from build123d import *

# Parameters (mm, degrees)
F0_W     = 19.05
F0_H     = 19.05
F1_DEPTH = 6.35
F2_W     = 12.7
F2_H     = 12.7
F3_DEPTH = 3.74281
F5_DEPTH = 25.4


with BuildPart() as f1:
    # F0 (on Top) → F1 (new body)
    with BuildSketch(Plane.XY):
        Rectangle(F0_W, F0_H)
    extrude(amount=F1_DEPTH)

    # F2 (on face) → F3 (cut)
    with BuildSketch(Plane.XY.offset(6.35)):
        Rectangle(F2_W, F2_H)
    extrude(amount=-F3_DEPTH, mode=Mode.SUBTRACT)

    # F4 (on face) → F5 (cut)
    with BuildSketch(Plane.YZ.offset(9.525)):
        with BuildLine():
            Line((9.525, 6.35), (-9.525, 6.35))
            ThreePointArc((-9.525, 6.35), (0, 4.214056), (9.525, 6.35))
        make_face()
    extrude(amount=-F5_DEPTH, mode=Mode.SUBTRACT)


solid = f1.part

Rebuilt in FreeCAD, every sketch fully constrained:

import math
import FreeCAD as App
import Part
import Sketcher
from FreeCAD import Vector
Q = App.Units.Quantity

doc = App.newDocument("Part")
params = doc.addObject("Spreadsheet::Sheet", "Params")
for row, (alias, value) in enumerate([
    ("sketch1_width", "0.75 in"),
    ("pad1_length", "0.25 in"),
    ("sketch2_width", "0.5 in"),
    ("pocket1_length", "3.74281 mm"),
    ("sketch3_width", "0.75 in"),
    ("pocket2_length", "1 in"),
], start=1):
    params.set(f"A{row}", alias)
    params.set(f"B{row}", "=" + value)
    params.setAlias(f"B{row}", alias)

body = doc.addObject("PartDesign::Body", "Body")

sketch1 = body.newObject("Sketcher::SketchObject", "Sketch")
sketch1.AttachmentSupport = (doc.getObject("XY_Plane"), [""])
sketch1.MapMode = "FlatFace"
sketch1.addGeometry([
    Part.LineSegment(Vector(-10, 10, 0), Vector(-10, -10, 0)),
    Part.LineSegment(Vector(-10, -10, 0), Vector(10, -10, 0)),
    Part.LineSegment(Vector(10, -10, 0), Vector(10, 10, 0)),
    Part.LineSegment(Vector(10, 10, 0), Vector(-10, 10, 0)),
], False)
sketch1.addConstraint([
    Sketcher.Constraint("Coincident", 0, 2, 1, 1),
    Sketcher.Constraint("Coincident", 1, 2, 2, 1),
    Sketcher.Constraint("Coincident", 2, 2, 3, 1),
    Sketcher.Constraint("Coincident", 3, 2, 0, 1),
    Sketcher.Constraint("Vertical", 0),
    Sketcher.Constraint("Horizontal", 1),
    Sketcher.Constraint("Vertical", 2),
    Sketcher.Constraint("Horizontal", 3),
    Sketcher.Constraint("Symmetric", 0, 2, 2, 2, -1, 1),
    Sketcher.Constraint("Equal", 3, 0),
    Sketcher.Constraint("DistanceX", 1, 1, 1, 2, Q("0.75 in")),
])
sketch1.setExpression("Constraints[10]", "Params.sketch1_width")
pad1 = body.newObject("PartDesign::Pad", "Pad")
pad1.Profile = sketch1
pad1.setExpression("Length", "Params.pad1_length")

sketch2 = body.newObject("Sketcher::SketchObject", "Sketch001")
sketch2.AttachmentSupport = (doc.getObject("XY_Plane"), [""])
sketch2.MapMode = "FlatFace"
sketch2.AttachmentOffset = App.Placement(Vector(0, 0, 0.25 * 25.4), App.Rotation())
sketch2.addGeometry([
    Part.LineSegment(Vector(-6, 6, 0), Vector(-6, -6, 0)),
    Part.LineSegment(Vector(-6, -6, 0), Vector(6, -6, 0)),
    Part.LineSegment(Vector(6, -6, 0), Vector(6, 6, 0)),
    Part.LineSegment(Vector(6, 6, 0), Vector(-6, 6, 0)),
], False)
sketch2.addConstraint([
    Sketcher.Constraint("Coincident", 0, 2, 1, 1),
    Sketcher.Constraint("Coincident", 1, 2, 2, 1),
    Sketcher.Constraint("Coincident", 2, 2, 3, 1),
    Sketcher.Constraint("Coincident", 3, 2, 0, 1),
    Sketcher.Constraint("Vertical", 0),
    Sketcher.Constraint("Horizontal", 1),
    Sketcher.Constraint("Vertical", 2),
    Sketcher.Constraint("Horizontal", 3),
    Sketcher.Constraint("Symmetric", 0, 2, 2, 2, -1, 1),
    Sketcher.Constraint("Equal", 3, 0),
    Sketcher.Constraint("DistanceX", 1, 1, 1, 2, Q("0.5 in")),
])
sketch2.setExpression("Constraints[10]", "Params.sketch2_width")
pocket1 = body.newObject("PartDesign::Pocket", "Pocket")
pocket1.Profile = sketch2
pocket1.setExpression("Length", "Params.pocket1_length")

sketch3 = body.newObject("Sketcher::SketchObject", "Sketch002")
sketch3.AttachmentSupport = (doc.getObject("YZ_Plane"), [""])
sketch3.MapMode = "FlatFace"
sketch3.AttachmentOffset = App.Placement(Vector(0, 0, 0.375 * 25.4), App.Rotation())
sketch3.addGeometry([
    Part.LineSegment(Vector(10, 6, 0), Vector(-10, 6, 0)),
    Part.ArcOfCircle(Part.Circle(Vector(0, 27, 0), Vector(0, 0, 1), 22), math.radians(-115), math.radians(-65)),
], False)
sketch3.addConstraint([
    Sketcher.Constraint("Coincident", 0, 1, 1, 2),
    Sketcher.Constraint("Coincident", 1, 1, 0, 2),
    Sketcher.Constraint("Horizontal", 0),
    Sketcher.Constraint("PointOnObject", 1, 3, -2),
    Sketcher.Constraint("DistanceX", 0, 2, 0, 1, Q("0.75 in")),
    Sketcher.Constraint("DistanceY", -1, 1, 0, 1, Q("0.25 in")),
    Sketcher.Constraint("Radius", 1, 22.305801),
])
sketch3.setExpression("Constraints[4]", "Params.sketch3_width")
pocket2 = body.newObject("PartDesign::Pocket", "Pocket001")
pocket2.Profile = sketch3
pocket2.setExpression("Length", "Params.pocket2_length")

doc.recompute()
